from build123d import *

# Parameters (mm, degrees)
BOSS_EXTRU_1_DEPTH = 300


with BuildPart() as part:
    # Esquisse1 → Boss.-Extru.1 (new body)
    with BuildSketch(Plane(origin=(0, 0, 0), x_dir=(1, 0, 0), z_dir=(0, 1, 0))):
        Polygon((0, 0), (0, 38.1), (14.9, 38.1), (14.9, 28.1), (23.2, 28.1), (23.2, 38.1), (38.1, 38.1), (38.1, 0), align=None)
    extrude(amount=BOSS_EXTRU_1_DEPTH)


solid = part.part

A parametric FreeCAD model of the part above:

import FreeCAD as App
import Part
import Sketcher
from FreeCAD import Vector


def add_polygon(sketch, points):
    """Adds a closed chain of lines whose ends are joined by coincident constraints."""
    first, n = sketch.GeometryCount, len(points)
    for a, b in zip(points, points[1:] + points[:1]):
        sketch.addGeometry(Part.LineSegment(App.Vector(*a, 0), App.Vector(*b, 0)), False)
    for i in range(n):
        sketch.addConstraint(Sketcher.Constraint("Coincident", first + i, 2, first + (i + 1) % n, 1))

doc = App.newDocument("Part")
body = doc.addObject("PartDesign::Body", "Body")

sketch1 = body.newObject("Sketcher::SketchObject", "Sketch")
sketch1.AttachmentSupport = (doc.getObject("XZ_Plane"), [""])
sketch1.MapMode = "FlatFace"
add_polygon(sketch1, [(0, -38), (0, 0), (38, 0), (38, -38), (23, -38), (23, -28), (15, -28), (15, -38)])
sketch1.addConstraint(Sketcher.Constraint("Vertical", 0))
sketch1.addConstraint(Sketcher.Constraint("Horizontal", 1))
sketch1.addConstraint(Sketcher.Constraint("Vertical", 2))
sketch1.addConstraint(Sketcher.Constraint("Horizontal", 3))
sketch1.addConstraint(Sketcher.Constraint("Vertical", 4))
sketch1.addConstraint(Sketcher.Constraint("Horizontal", 5))
sketch1.addConstraint(Sketcher.Constraint("Vertical", 6))
sketch1.addConstraint(Sketcher.Constraint("Horizontal", 7))
sketch1.addConstraint(Sketcher.Constraint("Coincident", 0, 2, -1, 1))
sketch1.addConstraint(Sketcher.Constraint("Horizontal", 3, 2, 6, 2))
sketch1.addConstraint(Sketcher.Constraint("Equal", 3, 7))
sketch1.addConstraint(Sketcher.Constraint("Equal", 1, 0))
sketch1.addConstraint(Sketcher.Constraint("DistanceY", 4, 1, 4, 2, 10.0))
sketch1.addConstraint(Sketcher.Constraint("DistanceX", 1, 1, 1, 2, 38.1))
sketch1.addConstraint(Sketcher.Constraint("DistanceX", 3, 2, 3, 1, 14.9))
pad1 = body.newObject("PartDesign::Pad", "Pad")
pad1.Profile = sketch1
pad1.Length = 300
pad1.Reversed = True

doc.recompute()
